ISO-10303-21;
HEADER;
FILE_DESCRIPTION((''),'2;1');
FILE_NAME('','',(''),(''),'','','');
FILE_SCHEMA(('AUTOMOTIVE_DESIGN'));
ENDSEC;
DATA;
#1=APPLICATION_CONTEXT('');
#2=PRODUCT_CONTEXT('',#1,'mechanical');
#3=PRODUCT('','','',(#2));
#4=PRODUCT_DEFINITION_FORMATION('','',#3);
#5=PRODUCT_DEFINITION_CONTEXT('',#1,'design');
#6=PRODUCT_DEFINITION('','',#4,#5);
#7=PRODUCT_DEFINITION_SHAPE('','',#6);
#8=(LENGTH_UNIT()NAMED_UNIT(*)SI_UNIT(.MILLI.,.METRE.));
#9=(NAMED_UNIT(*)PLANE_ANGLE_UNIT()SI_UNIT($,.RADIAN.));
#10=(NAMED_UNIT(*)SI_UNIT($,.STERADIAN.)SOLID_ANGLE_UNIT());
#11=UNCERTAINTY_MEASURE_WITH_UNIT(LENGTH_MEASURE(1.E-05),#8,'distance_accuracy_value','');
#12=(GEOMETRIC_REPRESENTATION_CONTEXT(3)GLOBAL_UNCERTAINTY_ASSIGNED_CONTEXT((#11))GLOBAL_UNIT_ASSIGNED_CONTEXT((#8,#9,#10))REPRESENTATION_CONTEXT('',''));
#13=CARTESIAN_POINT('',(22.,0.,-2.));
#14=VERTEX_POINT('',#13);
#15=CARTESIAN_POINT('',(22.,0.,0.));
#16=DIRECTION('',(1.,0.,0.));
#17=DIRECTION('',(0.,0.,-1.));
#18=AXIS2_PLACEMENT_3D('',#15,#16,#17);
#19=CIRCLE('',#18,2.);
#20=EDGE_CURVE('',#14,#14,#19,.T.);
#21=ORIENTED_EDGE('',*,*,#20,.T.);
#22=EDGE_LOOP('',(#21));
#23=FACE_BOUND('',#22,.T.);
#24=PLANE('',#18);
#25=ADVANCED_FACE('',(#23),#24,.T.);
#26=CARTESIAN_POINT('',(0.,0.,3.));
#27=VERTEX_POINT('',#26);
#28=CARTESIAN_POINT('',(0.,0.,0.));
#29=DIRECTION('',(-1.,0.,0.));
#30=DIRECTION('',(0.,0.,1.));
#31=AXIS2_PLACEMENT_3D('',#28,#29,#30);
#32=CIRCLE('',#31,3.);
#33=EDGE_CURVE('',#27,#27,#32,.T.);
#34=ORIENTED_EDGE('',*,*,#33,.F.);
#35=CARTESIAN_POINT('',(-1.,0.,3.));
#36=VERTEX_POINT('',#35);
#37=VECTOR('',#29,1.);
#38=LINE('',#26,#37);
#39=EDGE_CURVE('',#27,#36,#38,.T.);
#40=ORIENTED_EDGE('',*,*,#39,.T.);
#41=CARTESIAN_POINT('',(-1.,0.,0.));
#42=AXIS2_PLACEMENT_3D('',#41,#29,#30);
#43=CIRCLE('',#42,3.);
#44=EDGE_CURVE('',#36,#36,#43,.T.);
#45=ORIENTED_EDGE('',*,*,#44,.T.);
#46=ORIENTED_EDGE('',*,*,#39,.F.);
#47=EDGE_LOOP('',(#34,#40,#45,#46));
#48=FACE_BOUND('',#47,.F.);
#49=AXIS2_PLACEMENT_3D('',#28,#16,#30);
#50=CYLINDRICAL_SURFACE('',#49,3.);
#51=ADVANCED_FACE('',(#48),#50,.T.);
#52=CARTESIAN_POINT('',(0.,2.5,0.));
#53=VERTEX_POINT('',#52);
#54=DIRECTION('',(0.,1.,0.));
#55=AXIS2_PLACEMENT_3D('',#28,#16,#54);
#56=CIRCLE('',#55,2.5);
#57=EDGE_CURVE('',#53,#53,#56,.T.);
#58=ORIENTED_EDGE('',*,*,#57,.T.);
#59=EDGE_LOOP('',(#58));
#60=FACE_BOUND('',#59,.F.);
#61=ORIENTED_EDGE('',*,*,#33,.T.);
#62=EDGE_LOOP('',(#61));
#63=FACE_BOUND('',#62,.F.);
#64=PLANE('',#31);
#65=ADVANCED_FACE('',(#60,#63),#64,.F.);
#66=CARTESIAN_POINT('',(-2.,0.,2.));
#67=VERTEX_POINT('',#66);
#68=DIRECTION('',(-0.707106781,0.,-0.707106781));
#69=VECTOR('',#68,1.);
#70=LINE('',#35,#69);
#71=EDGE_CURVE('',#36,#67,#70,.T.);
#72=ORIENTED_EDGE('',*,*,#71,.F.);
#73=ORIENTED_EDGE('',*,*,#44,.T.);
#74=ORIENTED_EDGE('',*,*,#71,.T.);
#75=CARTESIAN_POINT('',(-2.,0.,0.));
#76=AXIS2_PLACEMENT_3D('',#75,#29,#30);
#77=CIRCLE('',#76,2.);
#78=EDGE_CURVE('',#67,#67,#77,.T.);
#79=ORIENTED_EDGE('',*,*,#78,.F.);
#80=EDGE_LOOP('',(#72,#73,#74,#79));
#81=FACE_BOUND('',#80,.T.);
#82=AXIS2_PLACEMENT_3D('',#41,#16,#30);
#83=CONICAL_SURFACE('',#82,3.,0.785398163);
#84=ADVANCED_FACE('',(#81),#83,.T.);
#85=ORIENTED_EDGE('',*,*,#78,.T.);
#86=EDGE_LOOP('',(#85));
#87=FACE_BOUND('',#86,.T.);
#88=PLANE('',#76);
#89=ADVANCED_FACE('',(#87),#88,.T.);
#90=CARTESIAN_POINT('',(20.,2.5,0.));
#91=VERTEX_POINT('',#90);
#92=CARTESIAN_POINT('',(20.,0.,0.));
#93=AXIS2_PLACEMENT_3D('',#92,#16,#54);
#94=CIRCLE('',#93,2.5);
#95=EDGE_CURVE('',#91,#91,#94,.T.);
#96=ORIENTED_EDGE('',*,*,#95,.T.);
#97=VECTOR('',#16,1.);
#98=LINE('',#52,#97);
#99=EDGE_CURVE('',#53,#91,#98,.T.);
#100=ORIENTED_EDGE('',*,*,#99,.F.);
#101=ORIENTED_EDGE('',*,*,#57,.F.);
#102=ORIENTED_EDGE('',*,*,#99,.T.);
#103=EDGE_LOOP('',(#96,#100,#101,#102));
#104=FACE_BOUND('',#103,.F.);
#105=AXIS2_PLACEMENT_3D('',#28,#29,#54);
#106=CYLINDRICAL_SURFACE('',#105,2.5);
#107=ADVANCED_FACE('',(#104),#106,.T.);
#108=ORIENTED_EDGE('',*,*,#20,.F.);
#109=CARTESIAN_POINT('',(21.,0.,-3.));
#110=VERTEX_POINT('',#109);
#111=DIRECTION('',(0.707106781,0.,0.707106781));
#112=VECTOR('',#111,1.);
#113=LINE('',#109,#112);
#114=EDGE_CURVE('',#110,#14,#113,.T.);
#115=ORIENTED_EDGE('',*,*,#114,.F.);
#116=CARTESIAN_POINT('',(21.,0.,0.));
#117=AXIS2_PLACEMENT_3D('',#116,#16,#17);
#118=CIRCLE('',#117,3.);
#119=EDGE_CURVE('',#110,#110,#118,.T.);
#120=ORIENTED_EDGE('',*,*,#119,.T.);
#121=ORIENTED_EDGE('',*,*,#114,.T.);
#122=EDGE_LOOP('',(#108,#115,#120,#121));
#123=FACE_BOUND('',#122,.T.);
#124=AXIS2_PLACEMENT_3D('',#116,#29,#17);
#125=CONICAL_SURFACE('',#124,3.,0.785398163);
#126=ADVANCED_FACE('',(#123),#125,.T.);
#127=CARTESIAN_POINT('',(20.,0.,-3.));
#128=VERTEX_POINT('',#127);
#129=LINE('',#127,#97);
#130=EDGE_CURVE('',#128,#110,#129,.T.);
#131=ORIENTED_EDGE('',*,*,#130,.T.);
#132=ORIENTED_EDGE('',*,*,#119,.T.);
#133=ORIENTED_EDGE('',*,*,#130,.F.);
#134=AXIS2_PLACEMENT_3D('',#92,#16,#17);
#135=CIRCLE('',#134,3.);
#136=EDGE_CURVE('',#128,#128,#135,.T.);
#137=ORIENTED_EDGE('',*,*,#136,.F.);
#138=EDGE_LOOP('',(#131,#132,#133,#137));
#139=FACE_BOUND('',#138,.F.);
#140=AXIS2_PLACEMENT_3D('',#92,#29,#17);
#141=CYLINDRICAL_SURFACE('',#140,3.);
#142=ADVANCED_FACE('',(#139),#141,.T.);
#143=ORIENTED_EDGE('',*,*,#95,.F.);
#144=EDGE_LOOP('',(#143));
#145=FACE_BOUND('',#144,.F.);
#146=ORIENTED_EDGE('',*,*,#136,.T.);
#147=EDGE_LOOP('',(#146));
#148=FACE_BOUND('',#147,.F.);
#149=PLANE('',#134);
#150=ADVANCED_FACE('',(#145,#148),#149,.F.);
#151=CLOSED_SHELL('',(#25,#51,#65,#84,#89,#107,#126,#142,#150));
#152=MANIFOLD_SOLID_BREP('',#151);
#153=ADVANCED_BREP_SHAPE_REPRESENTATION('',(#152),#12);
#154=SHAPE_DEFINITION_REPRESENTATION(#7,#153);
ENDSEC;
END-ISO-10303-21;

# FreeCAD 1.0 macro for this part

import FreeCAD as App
import Part
import Sketcher
from FreeCAD import Vector


def edges_at(feature, points):
    """Names of the edges that pass closest to the given points."""
    edges = feature.Shape.Edges
    near = lambda p: min(range(len(edges)), key=lambda i: edges[i].distToShape(Part.Vertex(*p))[0])
    return sorted({f"Edge{near(p) + 1}" for p in points})

doc = App.newDocument("Part")
body = doc.addObject("PartDesign::Body", "Body")

# Sketch on YZ plane
sketch1 = body.newObject("Sketcher::SketchObject", "Sketch")
sketch1.AttachmentSupport = (doc.getObject("YZ_Plane"), [""])
sketch1.MapMode = "FlatFace"
sketch1.addGeometry(Part.Circle(Vector(0, 0, 0), Vector(0, 0, 1), 2.5), False)
sketch1.addConstraint([
    Sketcher.Constraint("Coincident", 0, 3, -1, 1),
    Sketcher.Constraint("Diameter", 0, 5.0),
])
pad1 = body.newObject("PartDesign::Pad", "Pad")
pad1.Profile = sketch1
pad1.Length = 20

# Sketch on YZ plane
sketch2 = body.newObject("Sketcher::SketchObject", "Sketch001")
sketch2.AttachmentSupport = (doc.getObject("YZ_Plane"), [""])
sketch2.MapMode = "FlatFace"
sketch2.AttachmentOffset = App.Placement(Vector(0, 0, 20), App.Rotation())
sketch2.addGeometry(Part.Circle(Vector(0, 0, 0), Vector(0, 0, 1), 3), False)
sketch2.addConstraint([
    Sketcher.Constraint("Coincident", 0, 3, -1, 1),
    Sketcher.Constraint("Diameter", 0, 6.0),
])
pad2 = body.newObject("PartDesign::Pad", "Pad001")
pad2.Profile = sketch2
pad2.Length = 2
doc.recompute()

chamfer = body.newObject("PartDesign::Chamfer", "Chamfer")
chamfer.Base = (pad2, edges_at(pad2, [(22, 0, 3)]))
chamfer.Size = 1

# Sketch on YZ plane
sketch3 = body.newObject("Sketcher::SketchObject", "Sketch002")
sketch3.AttachmentSupport = (doc.getObject("YZ_Plane"), [""])
sketch3.MapMode = "FlatFace"
sketch3.addGeometry(Part.Circle(Vector(0, 0, 0), Vector(0, 0, 1), 3), False)
sketch3.addConstraint([
    Sketcher.Constraint("Coincident", 0, 3, -1, 1),
    Sketcher.Constraint("Diameter", 0, 6.0),
])
pad3 = body.newObject("PartDesign::Pad", "Pad002")
pad3.Profile = sketch3
pad3.Length = 2
pad3.Reversed = True
doc.recompute()

chamfer2 = body.newObject("PartDesign::Chamfer", "Chamfer001")
chamfer2.Base = (pad3, edges_at(pad3, [(-2, 0, -3)]))
chamfer2.Size = 1

doc.recompute()
